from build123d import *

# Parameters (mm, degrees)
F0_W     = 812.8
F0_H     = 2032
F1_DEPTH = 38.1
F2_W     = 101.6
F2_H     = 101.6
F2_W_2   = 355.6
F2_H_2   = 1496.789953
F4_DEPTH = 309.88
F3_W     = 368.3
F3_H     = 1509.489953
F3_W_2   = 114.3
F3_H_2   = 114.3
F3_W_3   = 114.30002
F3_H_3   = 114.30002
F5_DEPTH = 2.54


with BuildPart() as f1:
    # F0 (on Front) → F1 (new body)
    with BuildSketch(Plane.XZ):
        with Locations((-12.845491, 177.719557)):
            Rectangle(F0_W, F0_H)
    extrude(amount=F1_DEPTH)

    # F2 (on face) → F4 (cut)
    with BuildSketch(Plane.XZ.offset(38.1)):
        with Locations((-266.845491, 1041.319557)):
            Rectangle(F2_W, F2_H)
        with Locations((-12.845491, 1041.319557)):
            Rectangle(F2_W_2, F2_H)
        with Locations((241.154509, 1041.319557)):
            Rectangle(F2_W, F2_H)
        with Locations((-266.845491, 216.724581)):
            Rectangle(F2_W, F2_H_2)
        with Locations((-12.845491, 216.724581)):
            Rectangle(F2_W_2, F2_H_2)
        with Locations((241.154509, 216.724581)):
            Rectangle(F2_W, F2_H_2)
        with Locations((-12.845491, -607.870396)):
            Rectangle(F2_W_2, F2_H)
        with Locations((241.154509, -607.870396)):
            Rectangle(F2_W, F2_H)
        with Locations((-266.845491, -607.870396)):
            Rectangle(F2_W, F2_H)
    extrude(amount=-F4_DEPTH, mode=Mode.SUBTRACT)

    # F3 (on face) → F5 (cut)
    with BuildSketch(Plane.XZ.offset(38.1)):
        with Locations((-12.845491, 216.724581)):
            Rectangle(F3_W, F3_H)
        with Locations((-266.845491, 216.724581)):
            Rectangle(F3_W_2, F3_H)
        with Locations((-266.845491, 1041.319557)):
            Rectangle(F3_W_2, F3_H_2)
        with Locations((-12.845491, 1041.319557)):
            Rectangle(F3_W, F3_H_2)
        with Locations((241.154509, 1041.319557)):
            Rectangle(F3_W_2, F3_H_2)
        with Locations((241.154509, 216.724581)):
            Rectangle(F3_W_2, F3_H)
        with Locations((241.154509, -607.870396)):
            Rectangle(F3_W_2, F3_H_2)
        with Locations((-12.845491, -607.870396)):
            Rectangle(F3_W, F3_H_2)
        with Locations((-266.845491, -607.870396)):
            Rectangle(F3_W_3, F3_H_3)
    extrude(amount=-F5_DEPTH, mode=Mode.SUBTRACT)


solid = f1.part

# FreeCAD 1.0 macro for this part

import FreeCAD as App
import Part
import Sketcher
from FreeCAD import Vector
Q = App.Units.Quantity


def add_polygon(sketch, points):
    """Adds a closed chain of lines whose ends are joined by coincident constraints."""
    first, n = sketch.GeometryCount, len(points)
    for a, b in zip(points, points[1:] + points[:1]):
        sketch.addGeometry(Part.LineSegment(App.Vector(*a, 0), App.Vector(*b, 0)), False)
    for i in range(n):
        sketch.addConstraint(Sketcher.Constraint("Coincident", first + i, 2, first + (i + 1) % n, 1))

doc = App.newDocument("Part")
body = doc.addObject("PartDesign::Body", "Body")

# Sketch on XZ plane
sketch1 = body.newObject("Sketcher::SketchObject", "Sketch")
sketch1.AttachmentSupport = (doc.getObject("XZ_Plane"), [""])
sketch1.MapMode = "FlatFace"
add_polygon(sketch1, [(-419.245491, 1193.719557), (-419.245491, -838.280443), (393.554509, -838.280443), (393.554509, 1193.719557)])  # lines 0-3
sketch1.addConstraint(Sketcher.Constraint("Vertical", 0))
sketch1.addConstraint(Sketcher.Constraint("Horizontal", 1))
sketch1.addConstraint(Sketcher.Constraint("Vertical", 2))
sketch1.addConstraint(Sketcher.Constraint("Horizontal", 3))
sketch1.addConstraint(Sketcher.Constraint("DistanceX", 1, 1, 1, 2, Q("32 in")))
sketch1.addConstraint(Sketcher.Constraint("DistanceY", 0, 2, 0, 1, Q("80 in")))
sketch1.addConstraint(Sketcher.Constraint("DistanceX", 0, 2, -1, 1, Q("419.245491 mm")))
sketch1.addConstraint(Sketcher.Constraint("DistanceY", 0, 2, -1, 1, Q("838.280443 mm")))
pad1 = body.newObject("PartDesign::Pad", "Pad")
pad1.Profile = sketch1
pad1.Length = Q("1.5 in")

# Sketch on XZ plane
sketch2 = body.newObject("Sketcher::SketchObject", "Sketch001")
sketch2.AttachmentSupport = (doc.getObject("XZ_Plane"), [""])
sketch2.MapMode = "FlatFace"
sketch2.AttachmentOffset = App.Placement(Vector(0, 0, 1.5 * 25.4), App.Rotation())
add_polygon(sketch2, [(-317.645491, 1092.119557), (-317.645491, 990.519557), (-216.045491, 990.519557), (-216.045491, 1092.119557)])  # lines 0-3
add_polygon(sketch2, [(-190.645491, 1092.119557), (-190.645491, 990.519557), (164.954509, 990.519557), (164.954509, 1092.119557)])  # lines 4-7
add_polygon(sketch2, [(190.354509, 1092.119557), (190.354509, 990.519557), (291.954509, 990.519557), (291.954509, 1092.119557)])  # lines 8-11
add_polygon(sketch2, [(-317.645491, 965.119558), (-317.645491, -531.670396), (-216.045491, -531.670396), (-216.045491, 965.119558)])  # lines 12-15
add_polygon(sketch2, [(-190.645491, 965.119558), (-190.645491, -531.670396), (164.954509, -531.670396), (164.954509, 965.119558)])  # lines 16-19
add_polygon(sketch2, [(190.354509, 965.119558), (190.354509, -531.670396), (291.954509, -531.670396), (291.954509, 965.119558)])  # lines 20-23
add_polygon(sketch2, [(-190.645491, -557.070396), (-190.645491, -658.670396), (164.954509, -658.670396), (164.954509, -557.070396)])  # lines 24-27
add_polygon(sketch2, [(190.354509, -557.070396), (190.354509, -658.670396), (291.954509, -658.670396), (291.954509, -557.070396)])  # lines 28-31
add_polygon(sketch2, [(-317.645491, -557.070396), (-317.645491, -658.670396), (-216.045491, -658.670396), (-216.045491, -557.070396)])  # lines 32-35
sketch2.addConstraint(Sketcher.Constraint("Vertical", 0))
sketch2.addConstraint(Sketcher.Constraint("Horizontal", 1))
sketch2.addConstraint(Sketcher.Constraint("Vertical", 2))
sketch2.addConstraint(Sketcher.Constraint("Horizontal", 3))
sketch2.addConstraint(Sketcher.Constraint("Vertical", 4))
sketch2.addConstraint(Sketcher.Constraint("Horizontal", 5))
sketch2.addConstraint(Sketcher.Constraint("Vertical", 6))
sketch2.addConstraint(Sketcher.Constraint("Horizontal", 7))
sketch2.addConstraint(Sketcher.Constraint("Vertical", 8))
sketch2.addConstraint(Sketcher.Constraint("Horizontal", 9))
sketch2.addConstraint(Sketcher.Constraint("Vertical", 10))
sketch2.addConstraint(Sketcher.Constraint("Horizontal", 11))
sketch2.addConstraint(Sketcher.Constraint("Vertical", 12))
sketch2.addConstraint(Sketcher.Constraint("Horizontal", 13))
sketch2.addConstraint(Sketcher.Constraint("Vertical", 14))
sketch2.addConstraint(Sketcher.Constraint("Horizontal", 15))
sketch2.addConstraint(Sketcher.Constraint("Vertical", 16))
sketch2.addConstraint(Sketcher.Constraint("Horizontal", 17))
sketch2.addConstraint(Sketcher.Constraint("Vertical", 18))
sketch2.addConstraint(Sketcher.Constraint("Horizontal", 19))
sketch2.addConstraint(Sketcher.Constraint("Vertical", 20))
sketch2.addConstraint(Sketcher.Constraint("Horizontal", 21))
sketch2.addConstraint(Sketcher.Constraint("Vertical", 22))
sketch2.addConstraint(Sketcher.Constraint("Horizontal", 23))
sketch2.addConstraint(Sketcher.Constraint("Vertical", 24))
sketch2.addConstraint(Sketcher.Constraint("Horizontal", 25))
sketch2.addConstraint(Sketcher.Constraint("Vertical", 26))
sketch2.addConstraint(Sketcher.Constraint("Horizontal", 27))
sketch2.addConstraint(Sketcher.Constraint("Vertical", 28))
sketch2.addConstraint(Sketcher.Constraint("Horizontal", 29))
sketch2.addConstraint(Sketcher.Constraint("Vertical", 30))
sketch2.addConstraint(Sketcher.Constraint("Horizontal", 31))
sketch2.addConstraint(Sketcher.Constraint("Vertical", 32))
sketch2.addConstraint(Sketcher.Constraint("Horizontal", 33))
sketch2.addConstraint(Sketcher.Constraint("Vertical", 34))
sketch2.addConstraint(Sketcher.Constraint("Horizontal", 35))
sketch2.addConstraint(Sketcher.Constraint("Horizontal", 1, 2, 4, 2))
sketch2.addConstraint(Sketcher.Constraint("Horizontal", 3, 2, 6, 2))
sketch2.addConstraint(Sketcher.Constraint("Horizontal", 5, 2, 8, 2))
sketch2.addConstraint(Sketcher.Constraint("Horizontal", 7, 2, 10, 2))
sketch2.addConstraint(Sketcher.Constraint("Horizontal", 13, 2, 16, 2))
sketch2.addConstraint(Sketcher.Constraint("Horizontal", 15, 2, 18, 2))
sketch2.addConstraint(Sketcher.Constraint("Horizontal", 17, 2, 20, 2))
sketch2.addConstraint(Sketcher.Constraint("Horizontal", 19, 2, 22, 2))
sketch2.addConstraint(Sketcher.Constraint("Horizontal", 25, 2, 28, 2))
sketch2.addConstraint(Sketcher.Constraint("Horizontal", 27, 2, 30, 2))
sketch2.addConstraint(Sketcher.Constraint("Horizontal", 29, 2, 32, 2))
sketch2.addConstraint(Sketcher.Constraint("Horizontal", 31, 2, 34, 2))
sketch2.addConstraint(Sketcher.Constraint("Vertical", 3, 2, 12, 2))
sketch2.addConstraint(Sketcher.Constraint("Vertical", 2, 2, 13, 2))
sketch2.addConstraint(Sketcher.Constraint("Vertical", 7, 2, 16, 2))
sketch2.addConstraint(Sketcher.Constraint("Vertical", 6, 2, 17, 2))
sketch2.addConstraint(Sketcher.Constraint("Vertical", 11, 2, 20, 2))
sketch2.addConstraint(Sketcher.Constraint("Vertical", 10, 2, 21, 2))
sketch2.addConstraint(Sketcher.Constraint("Vertical", 19, 2, 24, 2))
sketch2.addConstraint(Sketcher.Constraint("Vertical", 18, 2, 25, 2))
sketch2.addConstraint(Sketcher.Constraint("Vertical", 23, 2, 28, 2))
sketch2.addConstraint(Sketcher.Constraint("Vertical", 22, 2, 29, 2))
sketch2.addConstraint(Sketcher.Constraint("Vertical", 15, 2, 32, 2))
sketch2.addConstraint(Sketcher.Constraint("Vertical", 14, 2, 33, 2))
sketch2.addConstraint(Sketcher.Constraint("Equal", 3, 9))
sketch2.addConstraint(Sketcher.Constraint("Equal", 35, 0))
sketch2.addConstraint(Sketcher.Constraint("Equal", 10, 24))
sketch2.addConstraint(Sketcher.Constraint("DistanceX", 1, 1, 1, 2, Q("4 in")))
sketch2.addConstraint(Sketcher.Constraint("DistanceX", 5, 1, 5, 2, Q("14 in")))
sketch2.addConstraint(Sketcher.Constraint("DistanceX", 1, 2, 4, 2, Q("1 in")))
sketch2.addConstraint(Sketcher.Constraint("DistanceX", 5, 2, 8, 2, Q("1 in")))
sketch2.addConstraint(Sketcher.Constraint("DistanceY", 14, 2, 1, 2, Q("1 in")))
sketch2.addConstraint(Sketcher.Constraint("DistanceY", 24, 2, 16, 2, Q("5 in")))
sketch2.addConstraint(Sketcher.Constraint("DistanceY", 12, 2, 12, 1, Q("1496.789953 mm")))
sketch2.addConstraint(Sketcher.Constraint("DistanceX", 0, 2, -1, 1, Q("317.645491 mm")))
sketch2.addConstraint(Sketcher.Constraint("DistanceY", -1, 1, 0, 2, Q("990.519557 mm")))
pocket1 = body.newObject("PartDesign::Pocket", "Pocket")
pocket1.Profile = sketch2
pocket1.Length = Q("12.2 in")

# Sketch on XZ plane
sketch3 = body.newObject("Sketcher::SketchObject", "Sketch002")
sketch3.AttachmentSupport = (doc.getObject("XZ_Plane"), [""])
sketch3.MapMode = "FlatFace"
sketch3.AttachmentOffset = App.Placement(Vector(0, 0, 1.5 * 25.4), App.Rotation())
add_polygon(sketch3, [(-196.995491, 971.469557), (-196.995491, -538.020395), (171.304509, -538.020395), (171.304509, 971.469557)])  # lines 0-3
add_polygon(sketch3, [(-323.995491, 971.469557), (-323.995491, -538.020395), (-209.695491, -538.020395), (-209.695491, 971.469557)])  # lines 4-7
add_polygon(sketch3, [(-323.995491, 1098.469557), (-323.995491, 984.169557), (-209.695491, 984.169557), (-209.695491, 1098.469557)])  # lines 8-11
add_polygon(sketch3, [(-196.995491, 1098.469557), (-196.995491, 984.169557), (171.304509, 984.169557), (171.304509, 1098.469557)])  # lines 12-15
add_polygon(sketch3, [(184.004509, 1098.469557), (184.004509, 984.169557), (298.304509, 984.169557), (298.304509, 1098.469557)])  # lines 16-19
add_polygon(sketch3, [(184.004509, 971.469557), (184.004509, -538.020395), (298.304509, -538.020395), (298.304509, 971.469557)])  # lines 20-23
add_polygon(sketch3, [(184.004509, -550.720396), (184.004509, -665.020396), (298.304509, -665.020396), (298.304509, -550.720396)])  # lines 24-27
add_polygon(sketch3, [(-196.995491, -550.720396), (-196.995491, -665.020396), (171.304509, -665.020396), (171.304509, -550.720396)])  # lines 28-31
add_polygon(sketch3, [(-323.995501, -550.720386), (-323.995501, -665.020406), (-209.695481, -665.020406), (-209.695481, -550.720386)])  # lines 32-35
sketch3.addConstraint(Sketcher.Constraint("Vertical", 0))
sketch3.addConstraint(Sketcher.Constraint("Horizontal", 1))
sketch3.addConstraint(Sketcher.Constraint("Vertical", 2))
sketch3.addConstraint(Sketcher.Constraint("Horizontal", 3))
sketch3.addConstraint(Sketcher.Constraint("Vertical", 4))
sketch3.addConstraint(Sketcher.Constraint("Horizontal", 5))
sketch3.addConstraint(Sketcher.Constraint("Vertical", 6))
sketch3.addConstraint(Sketcher.Constraint("Horizontal", 7))
sketch3.addConstraint(Sketcher.Constraint("Vertical", 8))
sketch3.addConstraint(Sketcher.Constraint("Horizontal", 9))
sketch3.addConstraint(Sketcher.Constraint("Vertical", 10))
sketch3.addConstraint(Sketcher.Constraint("Horizontal", 11))
sketch3.addConstraint(Sketcher.Constraint("Vertical", 12))
sketch3.addConstraint(Sketcher.Constraint("Horizontal", 13))
sketch3.addConstraint(Sketcher.Constraint("Vertical", 14))
sketch3.addConstraint(Sketcher.Constraint("Horizontal", 15))
sketch3.addConstraint(Sketcher.Constraint("Vertical", 16))
sketch3.addConstraint(Sketcher.Constraint("Horizontal", 17))
sketch3.addConstraint(Sketcher.Constraint("Vertical", 18))
sketch3.addConstraint(Sketcher.Constraint("Horizontal", 19))
sketch3.addConstraint(Sketcher.Constraint("Vertical", 20))
sketch3.addConstraint(Sketcher.Constraint("Horizontal", 21))
sketch3.addConstraint(Sketcher.Constraint("Vertical", 22))
sketch3.addConstraint(Sketcher.Constraint("Horizontal", 23))
sketch3.addConstraint(Sketcher.Constraint("Vertical", 24))
sketch3.addConstraint(Sketcher.Constraint("Horizontal", 25))
sketch3.addConstraint(Sketcher.Constraint("Vertical", 26))
sketch3.addConstraint(Sketcher.Constraint("Horizontal", 27))
sketch3.addConstraint(Sketcher.Constraint("Vertical", 28))
sketch3.addConstraint(Sketcher.Constraint("Horizontal", 29))
sketch3.addConstraint(Sketcher.Constraint("Vertical", 30))
sketch3.addConstraint(Sketcher.Constraint("Horizontal", 31))
sketch3.addConstraint(Sketcher.Constraint("Vertical", 32))
sketch3.addConstraint(Sketcher.Constraint("Horizontal", 33))
sketch3.addConstraint(Sketcher.Constraint("Vertical", 34))
sketch3.addConstraint(Sketcher.Constraint("Horizontal", 35))
sketch3.addConstraint(Sketcher.Constraint("Horizontal", 1, 2, 4, 2))
sketch3.addConstraint(Sketcher.Constraint("Horizontal", 3, 2, 6, 2))
sketch3.addConstraint(Sketcher.Constraint("Horizontal", 9, 2, 12, 2))
sketch3.addConstraint(Sketcher.Constraint("Horizontal", 11, 2, 14, 2))
sketch3.addConstraint(Sketcher.Constraint("Horizontal", 13, 2, 16, 2))
sketch3.addConstraint(Sketcher.Constraint("Horizontal", 15, 2, 18, 2))
sketch3.addConstraint(Sketcher.Constraint("Horizontal", 5, 2, 20, 2))
sketch3.addConstraint(Sketcher.Constraint("Horizontal", 7, 2, 22, 2))
sketch3.addConstraint(Sketcher.Constraint("Horizontal", 25, 2, 28, 2))
sketch3.addConstraint(Sketcher.Constraint("Horizontal", 27, 2, 30, 2))
sketch3.addConstraint(Sketcher.Constraint("Vertical", 7, 2, 8, 2))
sketch3.addConstraint(Sketcher.Constraint("Vertical", 6, 2, 9, 2))
sketch3.addConstraint(Sketcher.Constraint("Vertical", 3, 2, 12, 2))
sketch3.addConstraint(Sketcher.Constraint("Vertical", 2, 2, 13, 2))
sketch3.addConstraint(Sketcher.Constraint("Vertical", 19, 2, 20, 2))
sketch3.addConstraint(Sketcher.Constraint("Vertical", 18, 2, 21, 2))
sketch3.addConstraint(Sketcher.Constraint("Vertical", 23, 2, 24, 2))
sketch3.addConstraint(Sketcher.Constraint("Vertical", 22, 2, 25, 2))
sketch3.addConstraint(Sketcher.Constraint("Vertical", 15, 2, 28, 2))
sketch3.addConstraint(Sketcher.Constraint("Vertical", 14, 2, 29, 2))
sketch3.addConstraint(Sketcher.Constraint("Equal", 11, 17))
sketch3.addConstraint(Sketcher.Constraint("Equal", 27, 8))
sketch3.addConstraint(Sketcher.Constraint("Equal", 18, 24))
sketch3.addConstraint(Sketcher.Constraint("Equal", 35, 32))
sketch3.addConstraint(Sketcher.Constraint("DistanceX", 1, 1, 1, 2, Q("14.5 in")))
sketch3.addConstraint(Sketcher.Constraint("DistanceX", 5, 1, 5, 2, Q("4.5 in")))
sketch3.addConstraint(Sketcher.Constraint("DistanceX", 4, 2, 0, 2, Q("5 in")))
sketch3.addConstraint(Sketcher.Constraint("DistanceY", 6, 2, 10, 2, Q("5 in")))
sketch3.addConstraint(Sketcher.Constraint("DistanceX", 12, 2, 16, 2, Q("15 in")))
sketch3.addConstraint(Sketcher.Constraint("DistanceY", 24, 2, 20, 2, Q("5 in")))
sketch3.addConstraint(Sketcher.Constraint("DistanceX", 33, 1, 33, 2, Q("114.30002 mm")))
sketch3.addConstraint(Sketcher.Constraint("DistanceX", 32, 2, -1, 1, Q("323.995501 mm")))
sketch3.addConstraint(Sketcher.Constraint("DistanceY", 0, 2, 0, 1, Q("1509.489953 mm")))
sketch3.addConstraint(Sketcher.Constraint("DistanceX", 0, 2, -1, 1, Q("196.995491 mm")))
sketch3.addConstraint(Sketcher.Constraint("DistanceY", 32, 2, 4, 2, Q("127.000011 mm")))
sketch3.addConstraint(Sketcher.Constraint("DistanceY", 0, 2, -1, 1, Q("538.020395 mm")))
pocket2 = body.newObject("PartDesign::Pocket", "Pocket001")
pocket2.Profile = sketch3
pocket2.Length = Q("0.1 in")

doc.recompute()
